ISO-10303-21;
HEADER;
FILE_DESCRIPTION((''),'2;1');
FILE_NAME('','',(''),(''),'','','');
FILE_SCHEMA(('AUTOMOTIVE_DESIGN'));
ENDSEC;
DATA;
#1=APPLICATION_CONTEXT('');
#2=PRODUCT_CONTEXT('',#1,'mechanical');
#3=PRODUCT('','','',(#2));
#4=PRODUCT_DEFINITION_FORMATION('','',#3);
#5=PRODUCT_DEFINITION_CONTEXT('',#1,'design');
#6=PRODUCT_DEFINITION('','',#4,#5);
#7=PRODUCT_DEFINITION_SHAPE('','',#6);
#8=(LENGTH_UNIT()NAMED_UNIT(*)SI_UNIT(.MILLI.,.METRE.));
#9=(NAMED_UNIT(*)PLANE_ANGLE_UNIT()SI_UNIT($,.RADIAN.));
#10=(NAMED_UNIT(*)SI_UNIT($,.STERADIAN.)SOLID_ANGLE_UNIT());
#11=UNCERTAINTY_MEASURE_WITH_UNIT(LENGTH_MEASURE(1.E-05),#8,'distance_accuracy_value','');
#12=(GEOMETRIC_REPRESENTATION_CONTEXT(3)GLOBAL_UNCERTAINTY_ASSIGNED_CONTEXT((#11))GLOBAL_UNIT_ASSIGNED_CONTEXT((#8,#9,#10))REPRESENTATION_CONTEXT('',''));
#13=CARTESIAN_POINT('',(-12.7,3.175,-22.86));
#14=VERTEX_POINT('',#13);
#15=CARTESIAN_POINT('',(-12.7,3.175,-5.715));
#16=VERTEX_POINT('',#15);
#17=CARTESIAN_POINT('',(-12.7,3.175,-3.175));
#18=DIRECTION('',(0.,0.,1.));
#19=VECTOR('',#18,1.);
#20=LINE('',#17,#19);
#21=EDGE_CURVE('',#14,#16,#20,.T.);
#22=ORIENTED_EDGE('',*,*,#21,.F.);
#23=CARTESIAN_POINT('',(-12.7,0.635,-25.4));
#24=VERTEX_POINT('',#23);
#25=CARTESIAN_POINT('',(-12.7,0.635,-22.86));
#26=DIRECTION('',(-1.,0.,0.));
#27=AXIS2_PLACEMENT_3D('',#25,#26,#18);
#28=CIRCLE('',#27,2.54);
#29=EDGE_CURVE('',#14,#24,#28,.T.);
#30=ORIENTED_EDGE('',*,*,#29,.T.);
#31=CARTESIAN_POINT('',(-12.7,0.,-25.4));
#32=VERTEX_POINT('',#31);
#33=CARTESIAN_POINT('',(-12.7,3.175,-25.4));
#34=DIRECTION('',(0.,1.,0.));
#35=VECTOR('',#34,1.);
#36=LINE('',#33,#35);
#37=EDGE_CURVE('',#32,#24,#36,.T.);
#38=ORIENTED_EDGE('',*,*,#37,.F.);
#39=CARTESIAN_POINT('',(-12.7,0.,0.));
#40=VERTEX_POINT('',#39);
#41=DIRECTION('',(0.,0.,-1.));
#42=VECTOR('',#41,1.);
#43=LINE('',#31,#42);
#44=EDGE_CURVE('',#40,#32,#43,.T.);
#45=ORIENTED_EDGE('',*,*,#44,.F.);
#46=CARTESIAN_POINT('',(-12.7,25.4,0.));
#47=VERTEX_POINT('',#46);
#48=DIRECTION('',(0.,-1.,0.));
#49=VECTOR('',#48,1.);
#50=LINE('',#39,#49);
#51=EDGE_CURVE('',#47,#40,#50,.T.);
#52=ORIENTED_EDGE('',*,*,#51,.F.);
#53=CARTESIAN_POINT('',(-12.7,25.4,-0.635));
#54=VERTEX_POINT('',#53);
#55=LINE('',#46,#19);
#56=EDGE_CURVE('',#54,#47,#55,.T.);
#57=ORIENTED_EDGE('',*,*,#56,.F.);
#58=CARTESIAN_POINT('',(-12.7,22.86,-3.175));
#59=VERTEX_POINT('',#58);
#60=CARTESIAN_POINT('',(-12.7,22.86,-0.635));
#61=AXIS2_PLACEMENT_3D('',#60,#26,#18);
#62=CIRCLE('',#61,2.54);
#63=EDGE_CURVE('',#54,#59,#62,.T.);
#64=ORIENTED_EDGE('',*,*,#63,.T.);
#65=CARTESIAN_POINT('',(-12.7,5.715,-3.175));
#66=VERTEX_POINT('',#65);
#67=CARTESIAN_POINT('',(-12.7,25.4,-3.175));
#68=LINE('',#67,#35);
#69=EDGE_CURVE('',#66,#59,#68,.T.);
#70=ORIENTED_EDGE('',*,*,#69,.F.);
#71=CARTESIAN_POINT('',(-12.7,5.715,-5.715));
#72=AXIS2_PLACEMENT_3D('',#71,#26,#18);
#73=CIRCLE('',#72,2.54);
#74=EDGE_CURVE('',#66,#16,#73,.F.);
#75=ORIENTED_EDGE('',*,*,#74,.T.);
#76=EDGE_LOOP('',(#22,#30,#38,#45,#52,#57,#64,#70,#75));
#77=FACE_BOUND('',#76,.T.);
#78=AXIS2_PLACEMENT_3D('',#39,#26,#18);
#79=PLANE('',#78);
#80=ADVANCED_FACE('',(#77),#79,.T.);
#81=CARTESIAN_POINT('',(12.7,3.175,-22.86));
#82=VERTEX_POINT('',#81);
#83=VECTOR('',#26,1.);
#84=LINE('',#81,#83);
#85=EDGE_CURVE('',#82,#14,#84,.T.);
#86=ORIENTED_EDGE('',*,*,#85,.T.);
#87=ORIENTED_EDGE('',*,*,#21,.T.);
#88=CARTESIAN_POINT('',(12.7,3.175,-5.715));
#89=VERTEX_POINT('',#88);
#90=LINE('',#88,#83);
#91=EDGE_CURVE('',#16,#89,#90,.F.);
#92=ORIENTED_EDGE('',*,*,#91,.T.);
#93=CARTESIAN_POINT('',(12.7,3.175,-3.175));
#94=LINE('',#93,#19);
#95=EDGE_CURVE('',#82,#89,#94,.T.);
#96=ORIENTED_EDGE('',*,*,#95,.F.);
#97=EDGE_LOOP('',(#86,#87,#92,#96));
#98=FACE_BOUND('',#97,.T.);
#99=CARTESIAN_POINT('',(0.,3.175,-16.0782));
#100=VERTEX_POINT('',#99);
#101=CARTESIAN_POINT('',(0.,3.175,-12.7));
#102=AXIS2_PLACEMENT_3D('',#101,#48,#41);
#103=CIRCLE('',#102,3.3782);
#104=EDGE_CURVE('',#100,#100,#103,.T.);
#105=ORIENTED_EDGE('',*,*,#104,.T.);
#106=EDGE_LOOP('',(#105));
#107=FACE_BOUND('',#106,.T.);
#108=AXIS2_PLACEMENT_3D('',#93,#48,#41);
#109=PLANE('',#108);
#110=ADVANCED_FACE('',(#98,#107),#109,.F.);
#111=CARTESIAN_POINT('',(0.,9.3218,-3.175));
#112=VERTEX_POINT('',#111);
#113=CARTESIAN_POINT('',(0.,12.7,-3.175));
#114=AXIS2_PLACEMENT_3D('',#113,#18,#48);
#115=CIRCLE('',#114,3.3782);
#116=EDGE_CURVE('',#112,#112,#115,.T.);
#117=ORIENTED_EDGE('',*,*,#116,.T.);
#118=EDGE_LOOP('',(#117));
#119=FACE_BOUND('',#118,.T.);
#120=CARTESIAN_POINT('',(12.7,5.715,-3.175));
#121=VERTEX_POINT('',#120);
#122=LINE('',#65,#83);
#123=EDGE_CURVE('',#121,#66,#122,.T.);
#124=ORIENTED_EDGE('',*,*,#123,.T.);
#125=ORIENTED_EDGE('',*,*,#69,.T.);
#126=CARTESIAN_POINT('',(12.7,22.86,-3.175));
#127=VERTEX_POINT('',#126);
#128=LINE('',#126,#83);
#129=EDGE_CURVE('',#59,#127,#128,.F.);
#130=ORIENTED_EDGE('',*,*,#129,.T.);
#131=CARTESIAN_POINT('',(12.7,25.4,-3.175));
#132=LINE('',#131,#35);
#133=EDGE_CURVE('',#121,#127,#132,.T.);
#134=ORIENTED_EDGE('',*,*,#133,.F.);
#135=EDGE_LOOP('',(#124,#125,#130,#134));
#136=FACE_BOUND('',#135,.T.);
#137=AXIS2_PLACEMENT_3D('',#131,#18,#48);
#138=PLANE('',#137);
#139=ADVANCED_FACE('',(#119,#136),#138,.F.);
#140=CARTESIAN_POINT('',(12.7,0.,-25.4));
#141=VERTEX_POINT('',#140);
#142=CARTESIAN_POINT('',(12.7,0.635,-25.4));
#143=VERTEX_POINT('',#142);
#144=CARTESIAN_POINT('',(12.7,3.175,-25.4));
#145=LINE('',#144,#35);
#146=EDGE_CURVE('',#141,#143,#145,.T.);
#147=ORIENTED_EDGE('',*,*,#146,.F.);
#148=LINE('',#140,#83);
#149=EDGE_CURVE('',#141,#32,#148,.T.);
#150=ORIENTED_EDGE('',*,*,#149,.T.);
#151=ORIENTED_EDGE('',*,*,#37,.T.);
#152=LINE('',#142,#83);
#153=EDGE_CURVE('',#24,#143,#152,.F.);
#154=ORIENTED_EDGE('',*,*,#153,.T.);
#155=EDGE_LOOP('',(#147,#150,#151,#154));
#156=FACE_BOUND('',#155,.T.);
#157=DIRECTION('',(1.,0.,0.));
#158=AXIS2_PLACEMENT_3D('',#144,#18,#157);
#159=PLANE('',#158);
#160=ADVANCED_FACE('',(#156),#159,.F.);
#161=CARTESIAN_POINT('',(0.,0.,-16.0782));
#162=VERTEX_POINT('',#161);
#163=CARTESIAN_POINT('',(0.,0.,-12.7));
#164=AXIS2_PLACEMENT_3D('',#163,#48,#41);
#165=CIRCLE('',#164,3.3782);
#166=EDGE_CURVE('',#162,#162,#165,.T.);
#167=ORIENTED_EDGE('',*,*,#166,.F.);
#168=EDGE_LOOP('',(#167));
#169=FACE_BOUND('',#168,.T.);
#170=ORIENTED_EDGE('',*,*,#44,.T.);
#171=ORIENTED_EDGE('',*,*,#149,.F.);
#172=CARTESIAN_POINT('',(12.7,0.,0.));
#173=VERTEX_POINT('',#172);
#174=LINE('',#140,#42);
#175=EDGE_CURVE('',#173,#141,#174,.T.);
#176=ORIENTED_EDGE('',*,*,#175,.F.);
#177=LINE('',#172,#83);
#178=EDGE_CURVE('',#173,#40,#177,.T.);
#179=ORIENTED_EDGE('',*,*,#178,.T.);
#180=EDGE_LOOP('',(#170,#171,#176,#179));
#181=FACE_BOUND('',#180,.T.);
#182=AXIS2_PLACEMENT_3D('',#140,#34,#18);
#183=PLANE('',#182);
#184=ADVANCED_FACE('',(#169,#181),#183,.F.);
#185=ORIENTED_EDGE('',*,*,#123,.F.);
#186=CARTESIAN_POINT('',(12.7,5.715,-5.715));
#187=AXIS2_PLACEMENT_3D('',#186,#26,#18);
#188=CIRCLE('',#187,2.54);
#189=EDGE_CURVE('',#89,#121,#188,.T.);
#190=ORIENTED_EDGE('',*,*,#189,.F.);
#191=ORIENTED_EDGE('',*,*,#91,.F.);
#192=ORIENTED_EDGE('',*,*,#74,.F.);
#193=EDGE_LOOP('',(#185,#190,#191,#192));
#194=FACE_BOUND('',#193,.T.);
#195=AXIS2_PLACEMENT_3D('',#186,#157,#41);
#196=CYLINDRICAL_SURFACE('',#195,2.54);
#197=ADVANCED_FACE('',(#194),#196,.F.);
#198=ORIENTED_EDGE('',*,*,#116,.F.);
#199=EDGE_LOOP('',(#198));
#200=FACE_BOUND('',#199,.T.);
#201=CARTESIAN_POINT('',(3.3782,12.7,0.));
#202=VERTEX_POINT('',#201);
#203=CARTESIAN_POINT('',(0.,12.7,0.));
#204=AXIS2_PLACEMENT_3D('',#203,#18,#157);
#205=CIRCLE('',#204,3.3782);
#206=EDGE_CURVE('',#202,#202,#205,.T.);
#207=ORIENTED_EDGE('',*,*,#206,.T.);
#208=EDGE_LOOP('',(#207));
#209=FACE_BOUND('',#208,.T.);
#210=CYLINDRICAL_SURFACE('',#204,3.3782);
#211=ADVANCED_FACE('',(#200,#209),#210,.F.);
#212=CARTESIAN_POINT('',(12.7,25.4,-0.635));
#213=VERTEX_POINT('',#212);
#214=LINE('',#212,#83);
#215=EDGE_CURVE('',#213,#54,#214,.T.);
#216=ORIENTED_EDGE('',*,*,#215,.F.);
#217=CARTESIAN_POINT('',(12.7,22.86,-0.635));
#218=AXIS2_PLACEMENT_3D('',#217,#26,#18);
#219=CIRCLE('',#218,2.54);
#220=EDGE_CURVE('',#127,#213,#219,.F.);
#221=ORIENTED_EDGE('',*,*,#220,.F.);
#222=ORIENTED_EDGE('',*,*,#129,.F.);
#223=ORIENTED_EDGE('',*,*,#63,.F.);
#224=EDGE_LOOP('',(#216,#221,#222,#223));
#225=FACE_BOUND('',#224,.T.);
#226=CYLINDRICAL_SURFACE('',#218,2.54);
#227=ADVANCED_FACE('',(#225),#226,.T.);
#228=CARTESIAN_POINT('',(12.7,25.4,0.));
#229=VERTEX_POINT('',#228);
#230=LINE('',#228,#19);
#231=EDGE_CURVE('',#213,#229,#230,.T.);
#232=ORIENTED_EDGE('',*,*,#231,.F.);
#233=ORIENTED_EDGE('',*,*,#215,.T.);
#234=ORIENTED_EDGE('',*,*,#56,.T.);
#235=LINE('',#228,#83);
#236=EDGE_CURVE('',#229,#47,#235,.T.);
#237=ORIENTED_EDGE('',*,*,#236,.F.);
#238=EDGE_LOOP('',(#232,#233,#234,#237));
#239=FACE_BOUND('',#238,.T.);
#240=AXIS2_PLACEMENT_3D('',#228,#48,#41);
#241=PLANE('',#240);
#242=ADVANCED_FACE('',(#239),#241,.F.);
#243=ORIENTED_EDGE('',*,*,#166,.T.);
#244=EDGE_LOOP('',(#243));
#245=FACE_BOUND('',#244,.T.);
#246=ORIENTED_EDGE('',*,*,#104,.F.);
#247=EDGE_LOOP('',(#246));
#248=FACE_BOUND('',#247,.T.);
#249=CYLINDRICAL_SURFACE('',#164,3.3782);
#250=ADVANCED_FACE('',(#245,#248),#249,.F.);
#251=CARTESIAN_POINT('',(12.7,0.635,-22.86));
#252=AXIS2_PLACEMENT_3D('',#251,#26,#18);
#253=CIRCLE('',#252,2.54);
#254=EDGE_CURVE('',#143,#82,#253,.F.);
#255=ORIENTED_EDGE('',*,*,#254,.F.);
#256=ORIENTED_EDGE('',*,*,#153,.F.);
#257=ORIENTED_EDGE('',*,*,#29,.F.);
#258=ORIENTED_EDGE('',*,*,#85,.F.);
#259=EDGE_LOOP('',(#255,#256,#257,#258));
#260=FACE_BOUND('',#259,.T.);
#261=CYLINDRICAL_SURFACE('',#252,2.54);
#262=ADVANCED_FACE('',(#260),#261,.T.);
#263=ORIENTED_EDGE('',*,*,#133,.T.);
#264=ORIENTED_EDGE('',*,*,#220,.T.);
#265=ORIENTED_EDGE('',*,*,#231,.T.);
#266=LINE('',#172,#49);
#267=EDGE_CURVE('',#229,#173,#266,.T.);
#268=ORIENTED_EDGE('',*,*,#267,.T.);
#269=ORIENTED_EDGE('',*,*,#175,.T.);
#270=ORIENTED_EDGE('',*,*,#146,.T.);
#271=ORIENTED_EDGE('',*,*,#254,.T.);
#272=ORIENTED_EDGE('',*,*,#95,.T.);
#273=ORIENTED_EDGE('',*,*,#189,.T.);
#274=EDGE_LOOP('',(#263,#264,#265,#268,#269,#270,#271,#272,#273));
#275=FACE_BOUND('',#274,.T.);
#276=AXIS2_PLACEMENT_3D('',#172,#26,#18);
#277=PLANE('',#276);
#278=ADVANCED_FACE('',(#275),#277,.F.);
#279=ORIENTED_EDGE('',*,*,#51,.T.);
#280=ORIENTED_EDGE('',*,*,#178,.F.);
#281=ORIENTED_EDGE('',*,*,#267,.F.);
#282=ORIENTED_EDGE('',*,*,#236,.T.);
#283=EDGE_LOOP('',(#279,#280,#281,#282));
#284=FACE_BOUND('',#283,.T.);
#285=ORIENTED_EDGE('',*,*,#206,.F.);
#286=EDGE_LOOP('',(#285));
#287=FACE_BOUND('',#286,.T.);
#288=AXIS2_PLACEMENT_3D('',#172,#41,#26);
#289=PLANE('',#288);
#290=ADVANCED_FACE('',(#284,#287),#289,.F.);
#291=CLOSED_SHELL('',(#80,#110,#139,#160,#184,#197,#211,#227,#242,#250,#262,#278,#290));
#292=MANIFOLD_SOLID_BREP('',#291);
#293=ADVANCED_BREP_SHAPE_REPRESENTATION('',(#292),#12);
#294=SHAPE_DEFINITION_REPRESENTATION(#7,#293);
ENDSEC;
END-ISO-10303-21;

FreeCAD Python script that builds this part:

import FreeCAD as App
import Part
import Sketcher
from FreeCAD import Vector
Q = App.Units.Quantity


def edges_at(feature, points):
    """Names of the edges that pass closest to the given points."""
    edges = feature.Shape.Edges
    near = lambda p: min(range(len(edges)), key=lambda i: edges[i].distToShape(Part.Vertex(*p))[0])
    return sorted({f"Edge{near(p) + 1}" for p in points})

doc = App.newDocument("Part")
params = doc.addObject("Spreadsheet::Sheet", "Params")
for row, (alias, value) in enumerate([
    ("sketch1_width", "1 in"),
    ("sketch1_width2", "0.125 in"),
    ("pad1_length", "1 in"),
    ("sketch2_diameter", "0.266 in"),
    ("hole_diameter", "0.266 in"),
    ("sketch3_diameter", "0.266 in"),
    ("hole2_diameter", "0.266 in"),
    ("fillet_radius", "0.1 in"),
], start=1):
    params.set(f"A{row}", alias)
    params.set(f"B{row}", "=" + value)
    params.setAlias(f"B{row}", alias)

body = doc.addObject("PartDesign::Body", "Body")

sketch1 = body.newObject("Sketcher::SketchObject", "Sketch")
sketch1.AttachmentSupport = (doc.getObject("YZ_Plane"), [""])
sketch1.MapMode = "FlatFace"
sketch1.addGeometry([
    Part.LineSegment(Vector(25.4, 0, 0), Vector(0, 0, 0)),
    Part.LineSegment(Vector(0, 0, 0), Vector(0, -25.4, 0)),
    Part.LineSegment(Vector(0, -25.4, 0), Vector(3.2, -25.4, 0)),
    Part.LineSegment(Vector(3.2, -25.4, 0), Vector(3.2, -3.2, 0)),
    Part.LineSegment(Vector(3.2, -3.2, 0), Vector(25.4, -3.2, 0)),
    Part.LineSegment(Vector(25.4, -3.2, 0), Vector(25.4, 0, 0)),
], False)
sketch1.addConstraint([
    Sketcher.Constraint("Coincident", 0, 2, 1, 1),
    Sketcher.Constraint("Coincident", 1, 2, 2, 1),
    Sketcher.Constraint("Coincident", 2, 2, 3, 1),
    Sketcher.Constraint("Coincident", 3, 2, 4, 1),
    Sketcher.Constraint("Coincident", 4, 2, 5, 1),
    Sketcher.Constraint("Coincident", 5, 2, 0, 1),
    Sketcher.Constraint("Horizontal", 0),
    Sketcher.Constraint("Vertical", 1),
    Sketcher.Constraint("Horizontal", 2),
    Sketcher.Constraint("Vertical", 3),
    Sketcher.Constraint("Horizontal", 4),
    Sketcher.Constraint("Vertical", 5),
    Sketcher.Constraint("Coincident", 0, 2, -1, 1),
    Sketcher.Constraint("Equal", 0, 1),
    Sketcher.Constraint("Equal", 4, 3),
    Sketcher.Constraint("DistanceX", 0, 2, 0, 1, Q("1 in")),
    Sketcher.Constraint("DistanceX", 2, 1, 2, 2, Q("0.125 in")),
])
sketch1.setExpression("Constraints[15]", "Params.sketch1_width")
sketch1.setExpression("Constraints[16]", "Params.sketch1_width2")
pad1 = body.newObject("PartDesign::Pad", "Pad")
pad1.Profile = sketch1
pad1.setExpression("Length", "Params.pad1_length")
pad1.Midplane = True

sketch2 = body.newObject("Sketcher::SketchObject", "Sketch001")
sketch2.AttachmentSupport = (doc.getObject("XY_Plane"), [""])
sketch2.MapMode = "FlatFace"
sketch2.addGeometry(Part.Circle(Vector(0, 12.7, 0), Vector(0, 0, 1), 3.4), False)
sketch2.addConstraint([
    Sketcher.Constraint("PointOnObject", 0, 3, -2),
    Sketcher.Constraint("Diameter", 0, Q("0.266 in")),
    Sketcher.Constraint("DistanceY", -1, 1, 0, 3, Q("0.5 in")),
])
sketch2.setExpression("Constraints[1]", "Params.sketch2_diameter")
doc.recompute()
hole = body.newObject("PartDesign::Hole", "Hole")
hole.Profile = sketch2
hole.ThreadType = "None"
hole.setExpression("Diameter", "Params.hole_diameter")
hole.DepthType = "ThroughAll"

sketch3 = body.newObject("Sketcher::SketchObject", "Sketch002")
sketch3.AttachmentSupport = (doc.getObject("XZ_Plane"), [""])
sketch3.MapMode = "FlatFace"
sketch3.addGeometry(Part.Circle(Vector(0, -12.7, 0), Vector(0, 0, 1), 3.4), False)
sketch3.addConstraint([
    Sketcher.Constraint("PointOnObject", 0, 3, -2),
    Sketcher.Constraint("Diameter", 0, Q("0.266 in")),
    Sketcher.Constraint("DistanceY", 0, 3, -1, 1, Q("0.5 in")),
])
sketch3.setExpression("Constraints[1]", "Params.sketch3_diameter")
doc.recompute()
hole2 = body.newObject("PartDesign::Hole", "Hole001")
hole2.Profile = sketch3
hole2.ThreadType = "None"
hole2.setExpression("Diameter", "Params.hole2_diameter")
hole2.DepthType = "ThroughAll"
doc.recompute()

fillet = body.newObject("PartDesign::Fillet", "Fillet")
fillet.Base = (hole2, edges_at(hole2, [(0, 25.4, -3.175), (0, 3.175, -3.175), (0, 3.175, -25.4)]))
fillet.setExpression("Radius", "Params.fillet_radius")

doc.recompute()
